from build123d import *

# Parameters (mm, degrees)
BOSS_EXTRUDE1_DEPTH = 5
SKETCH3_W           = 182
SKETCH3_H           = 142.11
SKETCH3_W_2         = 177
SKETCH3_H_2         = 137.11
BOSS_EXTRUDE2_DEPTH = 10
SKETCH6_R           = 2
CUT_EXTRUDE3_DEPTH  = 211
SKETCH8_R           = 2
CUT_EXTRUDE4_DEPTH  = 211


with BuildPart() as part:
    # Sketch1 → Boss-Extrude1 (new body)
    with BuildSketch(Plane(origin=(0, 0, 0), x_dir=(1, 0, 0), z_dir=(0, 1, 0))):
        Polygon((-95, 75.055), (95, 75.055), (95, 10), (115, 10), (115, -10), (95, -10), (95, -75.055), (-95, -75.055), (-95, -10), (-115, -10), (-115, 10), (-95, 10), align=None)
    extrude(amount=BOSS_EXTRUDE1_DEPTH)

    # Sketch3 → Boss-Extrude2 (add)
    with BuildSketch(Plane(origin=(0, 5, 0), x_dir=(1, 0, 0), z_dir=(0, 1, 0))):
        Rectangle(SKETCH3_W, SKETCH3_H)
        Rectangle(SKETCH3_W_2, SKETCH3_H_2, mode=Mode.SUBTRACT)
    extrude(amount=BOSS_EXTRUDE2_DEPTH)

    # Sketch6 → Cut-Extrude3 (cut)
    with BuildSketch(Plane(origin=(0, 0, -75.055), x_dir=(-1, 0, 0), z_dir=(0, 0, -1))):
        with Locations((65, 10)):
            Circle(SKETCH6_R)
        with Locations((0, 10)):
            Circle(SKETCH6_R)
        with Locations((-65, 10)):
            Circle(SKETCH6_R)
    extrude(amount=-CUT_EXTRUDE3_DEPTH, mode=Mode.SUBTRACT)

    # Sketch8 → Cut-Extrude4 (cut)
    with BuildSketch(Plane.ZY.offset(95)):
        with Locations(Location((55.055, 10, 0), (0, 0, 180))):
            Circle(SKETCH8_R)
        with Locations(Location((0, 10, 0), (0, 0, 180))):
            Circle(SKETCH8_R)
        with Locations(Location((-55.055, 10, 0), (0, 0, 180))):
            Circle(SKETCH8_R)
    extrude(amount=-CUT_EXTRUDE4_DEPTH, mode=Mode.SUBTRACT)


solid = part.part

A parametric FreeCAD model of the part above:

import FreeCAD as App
import Part
import Sketcher

doc = App.newDocument("Part")
body = doc.addObject("PartDesign::Body", "Body")

sketch1 = doc.addObject("Sketcher::SketchObject", "Sketch")
body.addObject(sketch1)
sketch1.AttachmentSupport = (doc.XZ_Plane, [""])
sketch1.MapMode = "FlatFace"
sketch1.addGeometry([
    Part.LineSegment(App.Vector(95, -75.055, 0), App.Vector(-95, -75.055, 0)),
    Part.LineSegment(App.Vector(-95, -75.055, 0), App.Vector(-95, -10, 0)),
    Part.LineSegment(App.Vector(-95, -10, 0), App.Vector(-115, -10, 0)),
    Part.LineSegment(App.Vector(-115, -10, 0), App.Vector(-115, 10, 0)),
    Part.LineSegment(App.Vector(-115, 10, 0), App.Vector(-95, 10, 0)),
    Part.LineSegment(App.Vector(-95, 10, 0), App.Vector(-95, 75.055, 0)),
    Part.LineSegment(App.Vector(-95, 75.055, 0), App.Vector(95, 75.055, 0)),
    Part.LineSegment(App.Vector(95, 75.055, 0), App.Vector(95, 10, 0)),
    Part.LineSegment(App.Vector(95, 10, 0), App.Vector(115, 10, 0)),
    Part.LineSegment(App.Vector(115, 10, 0), App.Vector(115, -10, 0)),
    Part.LineSegment(App.Vector(115, -10, 0), App.Vector(95, -10, 0)),
    Part.LineSegment(App.Vector(95, -10, 0), App.Vector(95, -75.055, 0)),
], False)
sketch1.addConstraint([
    Sketcher.Constraint("Coincident", 0, 2, 1, 1),
    Sketcher.Constraint("Coincident", 1, 2, 2, 1),
    Sketcher.Constraint("Coincident", 2, 2, 3, 1),
    Sketcher.Constraint("Coincident", 3, 2, 4, 1),
    Sketcher.Constraint("Coincident", 4, 2, 5, 1),
    Sketcher.Constraint("Coincident", 5, 2, 6, 1),
    Sketcher.Constraint("Coincident", 6, 2, 7, 1),
    Sketcher.Constraint("Coincident", 7, 2, 8, 1),
    Sketcher.Constraint("Coincident", 8, 2, 9, 1),
    Sketcher.Constraint("Coincident", 9, 2, 10, 1),
    Sketcher.Constraint("Coincident", 10, 2, 11, 1),
    Sketcher.Constraint("Coincident", 11, 2, 0, 1),
    Sketcher.Constraint("Horizontal", 0),
    Sketcher.Constraint("Vertical", 1),
    Sketcher.Constraint("Horizontal", 2),
    Sketcher.Constraint("Vertical", 3),
    Sketcher.Constraint("Horizontal", 4),
    Sketcher.Constraint("Vertical", 5),
    Sketcher.Constraint("Horizontal", 6),
    Sketcher.Constraint("Vertical", 7),
    Sketcher.Constraint("Horizontal", 8),
    Sketcher.Constraint("Vertical", 9),
    Sketcher.Constraint("Horizontal", 10),
    Sketcher.Constraint("Vertical", 11),
    Sketcher.Constraint("Symmetric", 0, 2, 6, 2, -1, 1),
    Sketcher.Constraint("Symmetric", 2, 2, 8, 2, -1, 1),
    Sketcher.Constraint("Symmetric", 4, 2, 10, 2, -1, 1),
    Sketcher.Constraint("Symmetric", 4, 2, 7, 2, -2),
    Sketcher.Constraint("Equal", 10, 3),
    Sketcher.Constraint("DistanceX", 0, 2, 0, 1, 190.0),
    Sketcher.Constraint("DistanceX", 2, 2, 2, 1, 20.0),
    Sketcher.Constraint("DistanceY", 1, 1, 1, 2, 65.055),
])
pad1 = doc.addObject("PartDesign::Pad", "Pad")
body.addObject(pad1)
pad1.Profile = sketch1
pad1.Length = 5
pad1.Reversed = True

sketch2 = doc.addObject("Sketcher::SketchObject", "Sketch001")
body.addObject(sketch2)
sketch2.AttachmentSupport = (doc.XZ_Plane, [""])
sketch2.MapMode = "FlatFace"
sketch2.AttachmentOffset = App.Placement(App.Vector(0, 0, -5), App.Rotation())
sketch2.addGeometry([
    Part.LineSegment(App.Vector(-91, -71.055, 0), App.Vector(-91, 71.055, 0)),
    Part.LineSegment(App.Vector(-91, 71.055, 0), App.Vector(91, 71.055, 0)),
    Part.LineSegment(App.Vector(91, 71.055, 0), App.Vector(91, -71.055, 0)),
    Part.LineSegment(App.Vector(91, -71.055, 0), App.Vector(-91, -71.055, 0)),
    Part.LineSegment(App.Vector(88.5, 68.555, 0), App.Vector(-88.5, 68.555, 0)),
    Part.LineSegment(App.Vector(-88.5, 68.555, 0), App.Vector(-88.5, -68.555, 0)),
    Part.LineSegment(App.Vector(-88.5, -68.555, 0), App.Vector(88.5, -68.555, 0)),
    Part.LineSegment(App.Vector(88.5, -68.555, 0), App.Vector(88.5, 68.555, 0)),
], False)
sketch2.addConstraint([
    Sketcher.Constraint("Coincident", 0, 2, 1, 1),
    Sketcher.Constraint("Coincident", 1, 2, 2, 1),
    Sketcher.Constraint("Coincident", 2, 2, 3, 1),
    Sketcher.Constraint("Coincident", 3, 2, 0, 1),
    Sketcher.Constraint("Coincident", 4, 2, 5, 1),
    Sketcher.Constraint("Coincident", 5, 2, 6, 1),
    Sketcher.Constraint("Coincident", 6, 2, 7, 1),
    Sketcher.Constraint("Coincident", 7, 2, 4, 1),
    Sketcher.Constraint("Vertical", 0),
    Sketcher.Constraint("Horizontal", 1),
    Sketcher.Constraint("Vertical", 2),
    Sketcher.Constraint("Horizontal", 3),
    Sketcher.Constraint("Horizontal", 4),
    Sketcher.Constraint("Vertical", 5),
    Sketcher.Constraint("Horizontal", 6),
    Sketcher.Constraint("Vertical", 7),
    Sketcher.Constraint("Symmetric", 0, 2, 2, 2, -1, 1),
    Sketcher.Constraint("Symmetric", 4, 2, 6, 2, -1, 1),
    Sketcher.Constraint("DistanceX", 1, 1, 1, 2, 182.0),
    Sketcher.Constraint("DistanceX", 4, 2, 4, 1, 177.0),
    Sketcher.Constraint("DistanceY", 0, 1, 0, 2, 142.11),
    Sketcher.Constraint("DistanceY", 5, 2, 5, 1, 137.11),
])
pad2 = doc.addObject("PartDesign::Pad", "Pad001")
body.addObject(pad2)
pad2.Profile = sketch2
pad2.Length = 10
pad2.Reversed = True

sketch3 = doc.addObject("Sketcher::SketchObject", "Sketch002")
body.addObject(sketch3)
sketch3.AttachmentSupport = (doc.XY_Plane, [""])
sketch3.MapMode = "FlatFace"
sketch3.AttachmentOffset = App.Placement(App.Vector(0, 0, -75.055), App.Rotation())
sketch3.addGeometry([
    Part.Circle(App.Vector(-65, 10, 0), App.Vector(0, 0, 1), 2),
    Part.Circle(App.Vector(0, 10, 0), App.Vector(0, 0, 1), 2),
    Part.Circle(App.Vector(65, 10, 0), App.Vector(0, 0, 1), 2),
], False)
sketch3.addConstraint([
    Sketcher.Constraint("Equal", 0, 1),
    Sketcher.Constraint("Equal", 1, 2),
    Sketcher.Constraint("Symmetric", 0, 3, 2, 3, -2),
    Sketcher.Constraint("PointOnObject", 1, 3, -2),
    Sketcher.Constraint("Horizontal", 0, 3, 1, 3),
    Sketcher.Constraint("Diameter", 0, 4.0),
    Sketcher.Constraint("DistanceX", 0, 3, -1, 1, 65.0),
    Sketcher.Constraint("DistanceY", -1, 1, 0, 3, 10.0),
])
pocket1 = doc.addObject("PartDesign::Pocket", "Pocket")
body.addObject(pocket1)
pocket1.Profile = sketch3
pocket1.Length = 211
pocket1.Reversed = True

sketch4 = doc.addObject("Sketcher::SketchObject", "Sketch003")
body.addObject(sketch4)
sketch4.AttachmentSupport = (doc.YZ_Plane, [""])
sketch4.MapMode = "FlatFace"
sketch4.AttachmentOffset = App.Placement(App.Vector(0, 0, -95), App.Rotation())
sketch4.addGeometry([
    Part.Circle(App.Vector(10, 55.055, 0), App.Vector(0, 0, 1), 2),
    Part.Circle(App.Vector(10, 0, 0), App.Vector(0, 0, 1), 2),
    Part.Circle(App.Vector(10, -55.055, 0), App.Vector(0, 0, 1), 2),
], False)
sketch4.addConstraint([
    Sketcher.Constraint("Equal", 0, 1),
    Sketcher.Constraint("Equal", 1, 2),
    Sketcher.Constraint("Symmetric", 0, 3, 2, 3, -1),
    Sketcher.Constraint("PointOnObject", 1, 3, -1),
    Sketcher.Constraint("Vertical", 0, 3, 1, 3),
    Sketcher.Constraint("Diameter", 0, 4.0),
    Sketcher.Constraint("DistanceX", -1, 1, 0, 3, 10.0),
    Sketcher.Constraint("DistanceY", 2, 3, 0, 3, 110.11),
])
pocket2 = doc.addObject("PartDesign::Pocket", "Pocket001")
body.addObject(pocket2)
pocket2.Profile = sketch4
pocket2.Length = 211
pocket2.Reversed = True

doc.recompute()
